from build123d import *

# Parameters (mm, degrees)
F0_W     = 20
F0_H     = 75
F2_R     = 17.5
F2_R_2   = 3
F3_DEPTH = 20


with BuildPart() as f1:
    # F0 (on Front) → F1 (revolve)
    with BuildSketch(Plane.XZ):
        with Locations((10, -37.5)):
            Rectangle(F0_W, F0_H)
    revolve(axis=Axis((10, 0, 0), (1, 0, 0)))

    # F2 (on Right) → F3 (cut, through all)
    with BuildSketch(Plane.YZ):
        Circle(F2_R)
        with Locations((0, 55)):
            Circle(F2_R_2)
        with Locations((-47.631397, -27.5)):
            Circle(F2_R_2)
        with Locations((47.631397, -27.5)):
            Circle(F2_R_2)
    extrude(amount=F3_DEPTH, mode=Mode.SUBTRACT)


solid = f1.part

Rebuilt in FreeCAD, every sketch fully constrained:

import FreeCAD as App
import Part
import Sketcher
Q = App.Units.Quantity

doc = App.newDocument("Part")
body = doc.addObject("PartDesign::Body", "Body")

# Sketch on XZ plane
sketch1 = body.newObject("Sketcher::SketchObject", "Sketch")
sketch1.AttachmentSupport = (doc.getObject("XZ_Plane"), [""])
sketch1.MapMode = "FlatFace"
sketch1.addGeometry([
    Part.LineSegment(App.Vector(0, 0, 0), App.Vector(0, -75, 0)),
    Part.LineSegment(App.Vector(0, -75, 0), App.Vector(20, -75, 0)),
    Part.LineSegment(App.Vector(20, -75, 0), App.Vector(20, 0, 0)),
    Part.LineSegment(App.Vector(20, 0, 0), App.Vector(0, 0, 0)),
], False)
sketch1.addConstraint([
    Sketcher.Constraint("Coincident", 0, 2, 1, 1),
    Sketcher.Constraint("Coincident", 1, 2, 2, 1),
    Sketcher.Constraint("Coincident", 2, 2, 3, 1),
    Sketcher.Constraint("Coincident", 3, 2, 0, 1),
    Sketcher.Constraint("Vertical", 0),
    Sketcher.Constraint("Horizontal", 1),
    Sketcher.Constraint("Vertical", 2),
    Sketcher.Constraint("Horizontal", 3),
    Sketcher.Constraint("Coincident", 3, 2, -1, 1),
    Sketcher.Constraint("DistanceX", 1, 1, 1, 2, Q("20 mm")),
    Sketcher.Constraint("DistanceY", 0, 2, 0, 1, Q("75 mm")),
])
revolution = body.newObject("PartDesign::Revolution", "Revolution")
revolution.Profile = sketch1
revolution.ReferenceAxis = (sketch1, ["H_Axis"])
revolution.Angle = 360

# Sketch on YZ plane
sketch2 = body.newObject("Sketcher::SketchObject", "Sketch001")
sketch2.AttachmentSupport = (doc.getObject("YZ_Plane"), [""])
sketch2.MapMode = "FlatFace"
sketch2.addGeometry([
    Part.Circle(App.Vector(0, 0, 0), App.Vector(0, 0, 1), 17.5),
    Part.Circle(App.Vector(0, 55, 0), App.Vector(0, 0, 1), 3),
    Part.Circle(App.Vector(-47.631397, -27.5, 0), App.Vector(0, 0, 1), 3),
    Part.Circle(App.Vector(47.631397, -27.5, 0), App.Vector(0, 0, 1), 3),
], False)
sketch2.addConstraint([
    Sketcher.Constraint("Coincident", 0, 3, -1, 1),
    Sketcher.Constraint("Equal", 1, 2),
    Sketcher.Constraint("Equal", 2, 3),
    Sketcher.Constraint("Symmetric", 2, 3, 3, 3, -2),
    Sketcher.Constraint("PointOnObject", 1, 3, -2),
    Sketcher.Constraint("Diameter", 0, Q("35 mm")),
    Sketcher.Constraint("Diameter", 1, Q("6 mm")),
    Sketcher.Constraint("DistanceY", -1, 1, 1, 3, Q("55 mm")),
    Sketcher.Constraint("DistanceY", 2, 3, -1, 1, Q("27.5 mm")),
    Sketcher.Constraint("DistanceX", 2, 3, -1, 1, Q("47.631397 mm")),
])
pocket1 = body.newObject("PartDesign::Pocket", "Pocket")
pocket1.Profile = sketch2
pocket1.Type = "ThroughAll"
pocket1.Reversed = True

doc.recompute()
